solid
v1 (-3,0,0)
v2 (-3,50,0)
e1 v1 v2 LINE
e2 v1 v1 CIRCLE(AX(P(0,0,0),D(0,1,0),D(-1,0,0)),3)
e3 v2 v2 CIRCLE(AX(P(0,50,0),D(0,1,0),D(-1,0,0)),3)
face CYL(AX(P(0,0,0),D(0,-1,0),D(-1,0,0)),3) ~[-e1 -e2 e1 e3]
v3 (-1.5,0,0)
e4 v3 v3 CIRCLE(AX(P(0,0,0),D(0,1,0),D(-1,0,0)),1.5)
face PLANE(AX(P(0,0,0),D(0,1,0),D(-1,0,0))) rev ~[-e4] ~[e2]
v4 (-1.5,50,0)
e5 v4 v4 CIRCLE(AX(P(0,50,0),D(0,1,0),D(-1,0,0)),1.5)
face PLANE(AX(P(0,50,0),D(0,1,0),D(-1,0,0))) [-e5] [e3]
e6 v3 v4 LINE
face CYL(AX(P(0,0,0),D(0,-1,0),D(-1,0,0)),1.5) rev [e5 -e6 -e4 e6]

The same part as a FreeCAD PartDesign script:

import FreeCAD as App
import Part
import Sketcher

V = App.Vector
Q = App.Units.Quantity

doc = App.newDocument("Part")
body = doc.addObject("PartDesign::Body", "Body")

# Sketch on XZ plane
sketch1 = doc.addObject("Sketcher::SketchObject", "Sketch")
body.addObject(sketch1)
sketch1.AttachmentSupport = (doc.XZ_Plane, [""])
sketch1.MapMode = "FlatFace"
sketch1.addGeometry([
    Part.Circle(V(0, 0, 0), V(0, 0, 1), 3),
    Part.Circle(V(0, 0, 0), V(0, 0, 1), 1.5),
], False)
sketch1.addConstraint([
    Sketcher.Constraint("Coincident", 0, 3, -1, 1),
    Sketcher.Constraint("Coincident", 1, 3, -1, 1),
    Sketcher.Constraint("Diameter", 0, Q("6 mm")),
    Sketcher.Constraint("Diameter", 1, Q("3 mm")),
])
pad1 = doc.addObject("PartDesign::Pad", "Pad")
body.addObject(pad1)
pad1.Profile = sketch1
pad1.Length = 50
pad1.Reversed = True

doc.recompute()
